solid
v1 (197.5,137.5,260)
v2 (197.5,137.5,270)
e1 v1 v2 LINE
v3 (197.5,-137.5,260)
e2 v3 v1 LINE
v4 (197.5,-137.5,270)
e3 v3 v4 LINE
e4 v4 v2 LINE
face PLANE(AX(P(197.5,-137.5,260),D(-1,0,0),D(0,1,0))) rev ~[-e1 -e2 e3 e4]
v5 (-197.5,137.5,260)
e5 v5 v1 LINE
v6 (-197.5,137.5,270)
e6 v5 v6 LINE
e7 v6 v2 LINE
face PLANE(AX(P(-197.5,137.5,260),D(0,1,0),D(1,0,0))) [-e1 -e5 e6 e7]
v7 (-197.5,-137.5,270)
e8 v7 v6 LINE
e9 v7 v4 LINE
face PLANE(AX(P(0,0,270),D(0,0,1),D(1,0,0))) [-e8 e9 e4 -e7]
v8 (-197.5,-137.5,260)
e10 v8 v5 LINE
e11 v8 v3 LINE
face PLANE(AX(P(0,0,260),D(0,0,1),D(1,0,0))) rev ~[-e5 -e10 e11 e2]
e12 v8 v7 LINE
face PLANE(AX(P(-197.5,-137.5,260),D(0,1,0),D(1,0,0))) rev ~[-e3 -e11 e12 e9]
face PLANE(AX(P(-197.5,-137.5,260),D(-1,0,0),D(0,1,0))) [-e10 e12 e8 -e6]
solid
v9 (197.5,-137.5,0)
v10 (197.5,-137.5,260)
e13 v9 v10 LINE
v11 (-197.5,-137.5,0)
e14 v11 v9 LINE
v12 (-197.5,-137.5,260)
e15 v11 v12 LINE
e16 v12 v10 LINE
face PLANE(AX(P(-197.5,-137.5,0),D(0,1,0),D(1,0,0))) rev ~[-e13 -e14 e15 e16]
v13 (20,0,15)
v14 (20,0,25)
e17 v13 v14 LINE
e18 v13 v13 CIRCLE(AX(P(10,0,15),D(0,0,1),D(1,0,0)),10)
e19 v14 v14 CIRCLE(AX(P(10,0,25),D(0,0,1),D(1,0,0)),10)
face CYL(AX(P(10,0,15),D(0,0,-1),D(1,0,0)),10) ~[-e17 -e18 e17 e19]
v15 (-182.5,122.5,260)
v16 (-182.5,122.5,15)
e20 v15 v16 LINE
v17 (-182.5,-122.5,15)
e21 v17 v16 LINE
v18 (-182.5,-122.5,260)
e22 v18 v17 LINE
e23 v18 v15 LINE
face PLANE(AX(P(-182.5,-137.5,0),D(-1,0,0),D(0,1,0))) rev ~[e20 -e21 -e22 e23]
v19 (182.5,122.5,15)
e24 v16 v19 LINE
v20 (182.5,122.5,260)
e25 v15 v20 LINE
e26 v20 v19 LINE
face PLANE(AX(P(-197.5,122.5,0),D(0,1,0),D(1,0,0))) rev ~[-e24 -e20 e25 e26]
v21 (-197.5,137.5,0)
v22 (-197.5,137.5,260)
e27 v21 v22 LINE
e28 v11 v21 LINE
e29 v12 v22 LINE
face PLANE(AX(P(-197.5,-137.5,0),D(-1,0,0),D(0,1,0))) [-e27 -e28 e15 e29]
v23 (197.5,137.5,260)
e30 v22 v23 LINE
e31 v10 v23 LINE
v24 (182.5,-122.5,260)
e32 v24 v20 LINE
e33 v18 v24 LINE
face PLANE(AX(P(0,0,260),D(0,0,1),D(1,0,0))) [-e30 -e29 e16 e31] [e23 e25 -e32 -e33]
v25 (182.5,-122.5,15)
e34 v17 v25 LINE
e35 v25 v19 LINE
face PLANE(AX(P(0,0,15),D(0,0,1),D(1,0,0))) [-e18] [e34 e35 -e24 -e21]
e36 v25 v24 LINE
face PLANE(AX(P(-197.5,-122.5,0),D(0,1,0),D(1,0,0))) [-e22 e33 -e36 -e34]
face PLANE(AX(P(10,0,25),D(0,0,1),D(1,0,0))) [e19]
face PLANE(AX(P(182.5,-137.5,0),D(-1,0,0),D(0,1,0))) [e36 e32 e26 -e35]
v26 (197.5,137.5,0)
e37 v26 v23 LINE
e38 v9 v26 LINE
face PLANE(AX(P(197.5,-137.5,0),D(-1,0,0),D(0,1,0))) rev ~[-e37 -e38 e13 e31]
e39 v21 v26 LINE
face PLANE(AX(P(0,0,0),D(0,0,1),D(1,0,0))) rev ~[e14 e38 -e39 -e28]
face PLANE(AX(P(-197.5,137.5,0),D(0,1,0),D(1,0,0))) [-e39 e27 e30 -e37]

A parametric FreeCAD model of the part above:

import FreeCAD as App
import Part
import Sketcher
Q = App.Units.Quantity


def faces_at(feature, points):
    """Names of the faces that lie closest to the given points."""
    faces = feature.Shape.Faces
    near = lambda p: min(range(len(faces)), key=lambda i: faces[i].distToShape(Part.Vertex(*p))[0])
    return sorted({f"Face{near(p) + 1}" for p in points})

doc = App.newDocument("Part")
body = doc.addObject("PartDesign::Body", "Body")

# Sketch on XY plane
sketch1 = body.newObject("Sketcher::SketchObject", "Sketch")
sketch1.AttachmentSupport = (doc.getObject("XY_Plane"), [""])
sketch1.MapMode = "FlatFace"
sketch1.addGeometry(Part.LineSegment(App.Vector(-197.5, 137.5, 0), App.Vector(-197.5, -137.5, 0)), False)
sketch1.addGeometry(Part.LineSegment(App.Vector(-197.5, -137.5, 0), App.Vector(197.5, -137.5, 0)), False)
sketch1.addGeometry(Part.LineSegment(App.Vector(197.5, -137.5, 0), App.Vector(197.5, 137.5, 0)), False)
sketch1.addGeometry(Part.LineSegment(App.Vector(197.5, 137.5, 0), App.Vector(-197.5, 137.5, 0)), False)
sketch1.addConstraint(Sketcher.Constraint("Coincident", 0, 2, 1, 1))
sketch1.addConstraint(Sketcher.Constraint("Coincident", 1, 2, 2, 1))
sketch1.addConstraint(Sketcher.Constraint("Coincident", 2, 2, 3, 1))
sketch1.addConstraint(Sketcher.Constraint("Coincident", 3, 2, 0, 1))
sketch1.addConstraint(Sketcher.Constraint("Vertical", 0))
sketch1.addConstraint(Sketcher.Constraint("Horizontal", 1))
sketch1.addConstraint(Sketcher.Constraint("Vertical", 2))
sketch1.addConstraint(Sketcher.Constraint("Horizontal", 3))
sketch1.addConstraint(Sketcher.Constraint("Symmetric", 0, 2, 2, 2, -1, 1))
sketch1.addConstraint(Sketcher.Constraint("DistanceX", 1, 1, 1, 2, Q("395 mm")))
sketch1.addConstraint(Sketcher.Constraint("DistanceY", 0, 2, 0, 1, Q("275 mm")))
pad1 = body.newObject("PartDesign::Pad", "Pad")
pad1.Profile = sketch1
pad1.Length = 260
doc.recompute()

thickness = body.newObject("PartDesign::Thickness", "Thickness")
thickness.Base = (pad1, faces_at(pad1, [(0, 0, 260)]))
thickness.Value = 15
thickness.Reversed = True
thickness.Join = "Arc"

# Sketch on XY plane
sketch2 = body.newObject("Sketcher::SketchObject", "Sketch001")
sketch2.AttachmentSupport = (doc.getObject("XY_Plane"), [""])
sketch2.MapMode = "FlatFace"
sketch2.AttachmentOffset = App.Placement(App.Vector(0, 0, 15), App.Rotation())
sketch2.addGeometry(Part.Circle(App.Vector(10, 0, 0), App.Vector(0, 0, 1), 10), False)
sketch2.addConstraint(Sketcher.Constraint("PointOnObject", 0, 3, -1))
sketch2.addConstraint(Sketcher.Constraint("Diameter", 0, Q("20 mm")))
sketch2.addConstraint(Sketcher.Constraint("DistanceX", -1, 1, 0, 3, Q("10 mm")))
pad2 = body.newObject("PartDesign::Pad", "Pad001")
pad2.Profile = sketch2
pad2.Length = 10
body2 = doc.addObject("PartDesign::Body", "Body001")

# Sketch on XY plane
sketch3 = body2.newObject("Sketcher::SketchObject", "Sketch002")
sketch3.AttachmentSupport = (doc.getObject("XY_Plane001"), [""])
sketch3.MapMode = "FlatFace"
sketch3.AttachmentOffset = App.Placement(App.Vector(0, 0, 260), App.Rotation())
sketch3.addGeometry(Part.LineSegment(App.Vector(-197.5, 137.5, 0), App.Vector(-197.5, -137.5, 0)), False)
sketch3.addGeometry(Part.LineSegment(App.Vector(-197.5, -137.5, 0), App.Vector(197.5, -137.5, 0)), False)
sketch3.addGeometry(Part.LineSegment(App.Vector(197.5, -137.5, 0), App.Vector(197.5, 137.5, 0)), False)
sketch3.addGeometry(Part.LineSegment(App.Vector(197.5, 137.5, 0), App.Vector(-197.5, 137.5, 0)), False)
sketch3.addConstraint(Sketcher.Constraint("Coincident", 0, 2, 1, 1))
sketch3.addConstraint(Sketcher.Constraint("Coincident", 1, 2, 2, 1))
sketch3.addConstraint(Sketcher.Constraint("Coincident", 2, 2, 3, 1))
sketch3.addConstraint(Sketcher.Constraint("Coincident", 3, 2, 0, 1))
sketch3.addConstraint(Sketcher.Constraint("Vertical", 0))
sketch3.addConstraint(Sketcher.Constraint("Horizontal", 1))
sketch3.addConstraint(Sketcher.Constraint("Vertical", 2))
sketch3.addConstraint(Sketcher.Constraint("Horizontal", 3))
sketch3.addConstraint(Sketcher.Constraint("Symmetric", 0, 2, 2, 2, -1, 1))
sketch3.addConstraint(Sketcher.Constraint("DistanceX", 1, 1, 1, 2, Q("395 mm")))
sketch3.addConstraint(Sketcher.Constraint("DistanceY", 0, 2, 0, 1, Q("275 mm")))
pad3 = body2.newObject("PartDesign::Pad", "Pad002")
pad3.Profile = sketch3
pad3.Length = 10

doc.recompute()
